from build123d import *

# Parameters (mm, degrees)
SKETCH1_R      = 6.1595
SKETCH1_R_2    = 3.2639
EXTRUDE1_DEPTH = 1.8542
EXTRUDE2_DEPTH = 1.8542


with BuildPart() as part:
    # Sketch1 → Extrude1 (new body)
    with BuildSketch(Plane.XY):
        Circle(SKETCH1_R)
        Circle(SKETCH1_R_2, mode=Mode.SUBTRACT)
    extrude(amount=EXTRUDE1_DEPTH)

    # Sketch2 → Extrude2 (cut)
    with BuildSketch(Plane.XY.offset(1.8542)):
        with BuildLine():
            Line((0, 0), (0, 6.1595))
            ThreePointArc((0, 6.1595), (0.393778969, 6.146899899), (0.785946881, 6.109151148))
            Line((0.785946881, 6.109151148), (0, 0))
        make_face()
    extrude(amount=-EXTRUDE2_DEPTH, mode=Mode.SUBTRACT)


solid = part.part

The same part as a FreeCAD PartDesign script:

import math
import FreeCAD as App
import Part
import Sketcher
from FreeCAD import Vector
Q = App.Units.Quantity

doc = App.newDocument("Part")
body = doc.addObject("PartDesign::Body", "Body")

# Sketch on XY plane
sketch1 = doc.addObject("Sketcher::SketchObject", "Sketch")
body.addObject(sketch1)
sketch1.AttachmentSupport = (doc.XY_Plane, [""])
sketch1.MapMode = "FlatFace"
sketch1.addGeometry([
    Part.Circle(Vector(0, 0, 0), Vector(0, 0, 1), 6.1595),
    Part.Circle(Vector(0, 0, 0), Vector(0, 0, 1), 3.2639),
], False)
sketch1.addConstraint([
    Sketcher.Constraint("Coincident", 0, 3, -1, 1),
    Sketcher.Constraint("Coincident", 1, 3, -1, 1),
    Sketcher.Constraint("Diameter", 0, Q("0.485 in")),
    Sketcher.Constraint("Diameter", 1, Q("0.257 in")),
])
pad1 = doc.addObject("PartDesign::Pad", "Pad")
body.addObject(pad1)
pad1.Profile = sketch1
pad1.Length = Q("0.073 in")

# Sketch on XY plane
sketch2 = doc.addObject("Sketcher::SketchObject", "Sketch001")
body.addObject(sketch2)
sketch2.AttachmentSupport = (doc.XY_Plane, [""])
sketch2.MapMode = "FlatFace"
sketch2.AttachmentOffset = App.Placement(Vector(0, 0, 0.073 * 25.4), App.Rotation())
sketch2.addGeometry([
    Part.LineSegment(Vector(0, 6.1595, 0), Vector(0, 0, 0)),
    Part.LineSegment(Vector(0, 0, 0), Vector(0.785947, 6.109151, 0)),
    Part.ArcOfCircle(Part.Circle(Vector(0, 0, 0), Vector(0, 0, 1), 6.1595), math.radians(82.669123), math.radians(90)),
], False)
sketch2.addConstraint([
    Sketcher.Constraint("Coincident", 0, 2, 1, 1),
    Sketcher.Constraint("Coincident", 1, 2, 2, 1),
    Sketcher.Constraint("Coincident", 2, 2, 0, 1),
    Sketcher.Constraint("Vertical", 0),
    Sketcher.Constraint("Coincident", 2, 3, -1, 1),
    Sketcher.Constraint("Coincident", 0, 2, -1, 1),
    Sketcher.Constraint("Radius", 2, Q("0.2425 in")),
    Sketcher.Constraint("DistanceY", -1, 1, 1, 2, Q("6.109151 mm")),
])
pocket1 = doc.addObject("PartDesign::Pocket", "Pocket")
body.addObject(pocket1)
pocket1.Profile = sketch2
pocket1.Length = Q("0.073 in")

doc.recompute()
